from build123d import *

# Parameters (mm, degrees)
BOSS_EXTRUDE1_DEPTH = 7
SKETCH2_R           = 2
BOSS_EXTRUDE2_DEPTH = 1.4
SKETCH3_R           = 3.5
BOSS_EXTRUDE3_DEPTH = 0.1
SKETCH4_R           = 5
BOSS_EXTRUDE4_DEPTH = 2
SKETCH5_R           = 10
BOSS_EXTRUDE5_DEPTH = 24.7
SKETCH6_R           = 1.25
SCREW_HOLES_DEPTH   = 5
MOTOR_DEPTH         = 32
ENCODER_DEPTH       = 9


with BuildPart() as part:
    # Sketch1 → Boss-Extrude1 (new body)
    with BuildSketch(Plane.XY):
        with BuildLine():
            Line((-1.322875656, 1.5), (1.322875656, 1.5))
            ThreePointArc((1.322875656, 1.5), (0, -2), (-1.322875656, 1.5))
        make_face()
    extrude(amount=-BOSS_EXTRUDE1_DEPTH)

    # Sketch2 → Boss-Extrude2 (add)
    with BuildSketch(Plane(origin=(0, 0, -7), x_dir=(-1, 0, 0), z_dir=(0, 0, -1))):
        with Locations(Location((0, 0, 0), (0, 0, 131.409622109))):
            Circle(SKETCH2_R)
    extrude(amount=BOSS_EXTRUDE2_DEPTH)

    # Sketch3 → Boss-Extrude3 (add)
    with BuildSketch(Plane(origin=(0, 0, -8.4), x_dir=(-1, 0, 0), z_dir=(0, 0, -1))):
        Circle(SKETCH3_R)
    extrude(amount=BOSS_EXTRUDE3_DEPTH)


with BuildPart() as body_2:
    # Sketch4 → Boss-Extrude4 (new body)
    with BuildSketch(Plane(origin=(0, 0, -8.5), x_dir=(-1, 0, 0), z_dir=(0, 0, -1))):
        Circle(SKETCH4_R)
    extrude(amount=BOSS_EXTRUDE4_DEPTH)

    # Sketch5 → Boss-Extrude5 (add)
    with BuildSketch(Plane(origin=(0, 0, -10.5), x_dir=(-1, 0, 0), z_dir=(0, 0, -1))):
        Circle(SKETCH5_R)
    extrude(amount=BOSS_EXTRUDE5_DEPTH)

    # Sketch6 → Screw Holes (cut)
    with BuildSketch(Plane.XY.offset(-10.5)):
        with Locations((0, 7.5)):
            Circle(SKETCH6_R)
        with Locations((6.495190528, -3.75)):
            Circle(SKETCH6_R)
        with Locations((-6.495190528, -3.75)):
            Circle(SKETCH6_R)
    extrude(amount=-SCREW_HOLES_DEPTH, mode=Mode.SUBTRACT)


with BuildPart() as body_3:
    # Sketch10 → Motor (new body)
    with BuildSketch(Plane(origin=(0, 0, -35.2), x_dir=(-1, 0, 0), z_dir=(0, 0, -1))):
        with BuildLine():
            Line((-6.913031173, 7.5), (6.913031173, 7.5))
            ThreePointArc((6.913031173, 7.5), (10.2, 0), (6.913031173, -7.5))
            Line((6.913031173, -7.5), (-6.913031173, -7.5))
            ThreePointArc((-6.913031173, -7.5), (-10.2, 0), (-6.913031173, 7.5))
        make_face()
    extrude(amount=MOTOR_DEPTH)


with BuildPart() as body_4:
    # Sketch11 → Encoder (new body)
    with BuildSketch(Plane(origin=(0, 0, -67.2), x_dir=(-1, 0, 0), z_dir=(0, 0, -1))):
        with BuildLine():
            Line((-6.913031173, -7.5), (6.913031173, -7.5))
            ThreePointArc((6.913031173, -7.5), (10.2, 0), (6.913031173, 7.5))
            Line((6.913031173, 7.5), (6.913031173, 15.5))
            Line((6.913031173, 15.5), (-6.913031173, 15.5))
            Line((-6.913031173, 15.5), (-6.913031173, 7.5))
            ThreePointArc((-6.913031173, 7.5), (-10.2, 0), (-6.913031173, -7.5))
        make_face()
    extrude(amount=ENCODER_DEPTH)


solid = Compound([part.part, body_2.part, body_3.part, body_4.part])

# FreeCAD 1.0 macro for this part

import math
import FreeCAD as App
import Part
import Sketcher
from FreeCAD import Vector
Q = App.Units.Quantity

doc = App.newDocument("Part")
params = doc.addObject("Spreadsheet::Sheet", "Params")
for row, (alias, value) in enumerate([
    ("sketch1_radius", "2 mm"),
    ("pad1_length", "7 mm"),
    ("sketch2_diameter", "4 mm"),
    ("pad2_length", "1.4 mm"),
    ("sketch3_diameter", "7 mm"),
    ("pad3_length", "0.1 mm"),
    ("sketch4_diameter", "10 mm"),
    ("pad4_length", "2 mm"),
    ("sketch5_diameter", "20 mm"),
    ("pad5_length", "24.7 mm"),
    ("sketch6_diameter", "2.5 mm"),
    ("pocket1_length", "5 mm"),
    ("sketch7_radius", "10.2 mm"),
    ("pad6_length", "32 mm"),
    ("sketch8_radius", "10.2 mm"),
    ("sketch8_height", "8 mm"),
    ("pad7_length", "9 mm"),
], start=1):
    params.set(f"A{row}", alias)
    params.set(f"B{row}", "=" + value)
    params.setAlias(f"B{row}", alias)

body = doc.addObject("PartDesign::Body", "Body")

# Sketch on XY plane
sketch1 = body.newObject("Sketcher::SketchObject", "Sketch")
sketch1.AttachmentSupport = (doc.getObject("XY_Plane"), [""])
sketch1.MapMode = "FlatFace"
sketch1.addGeometry([
    Part.LineSegment(Vector(1.322876, 1.5, 0), Vector(-1.322876, 1.5, 0)),
    Part.ArcOfCircle(Part.Circle(Vector(0, 0, 0), Vector(0, 0, 1), 2), math.radians(131.409622), math.radians(408.590378)),
], False)
sketch1.addConstraint([
    Sketcher.Constraint("Coincident", 0, 1, 1, 2),
    Sketcher.Constraint("Coincident", 1, 1, 0, 2),
    Sketcher.Constraint("Horizontal", 0),
    Sketcher.Constraint("Coincident", 1, 3, -1, 1),
    Sketcher.Constraint("Radius", 1, Q("2 mm")),
    Sketcher.Constraint("DistanceY", -1, 1, 0, 1, Q("1.5 mm")),
])
sketch1.setExpression("Constraints[4]", "Params.sketch1_radius")
pad1 = body.newObject("PartDesign::Pad", "Pad")
pad1.Profile = sketch1
pad1.setExpression("Length", "Params.pad1_length")
pad1.Reversed = True

# Sketch on XY plane
sketch2 = body.newObject("Sketcher::SketchObject", "Sketch001")
sketch2.AttachmentSupport = (doc.getObject("XY_Plane"), [""])
sketch2.MapMode = "FlatFace"
sketch2.AttachmentOffset = App.Placement(Vector(0, 0, -7), App.Rotation())
sketch2.addGeometry(Part.Circle(Vector(0, 0, 0), Vector(0, 0, 1), 2), False)
sketch2.addConstraint([
    Sketcher.Constraint("Coincident", 0, 3, -1, 1),
    Sketcher.Constraint("Diameter", 0, Q("4 mm")),
])
sketch2.setExpression("Constraints[1]", "Params.sketch2_diameter")
pad2 = body.newObject("PartDesign::Pad", "Pad001")
pad2.Profile = sketch2
pad2.setExpression("Length", "Params.pad2_length")
pad2.Reversed = True

# Sketch on XY plane
sketch3 = body.newObject("Sketcher::SketchObject", "Sketch002")
sketch3.AttachmentSupport = (doc.getObject("XY_Plane"), [""])
sketch3.MapMode = "FlatFace"
sketch3.AttachmentOffset = App.Placement(Vector(0, 0, -8.4), App.Rotation())
sketch3.addGeometry(Part.Circle(Vector(0, 0, 0), Vector(0, 0, 1), 3.5), False)
sketch3.addConstraint([
    Sketcher.Constraint("Coincident", 0, 3, -1, 1),
    Sketcher.Constraint("Diameter", 0, Q("7 mm")),
])
sketch3.setExpression("Constraints[1]", "Params.sketch3_diameter")
pad3 = body.newObject("PartDesign::Pad", "Pad002")
pad3.Profile = sketch3
pad3.setExpression("Length", "Params.pad3_length")
pad3.Reversed = True
body2 = doc.addObject("PartDesign::Body", "Body001")

# Sketch on XY plane
sketch4 = body2.newObject("Sketcher::SketchObject", "Sketch003")
sketch4.AttachmentSupport = (doc.getObject("XY_Plane001"), [""])
sketch4.MapMode = "FlatFace"
sketch4.AttachmentOffset = App.Placement(Vector(0, 0, -8.5), App.Rotation())
sketch4.addGeometry(Part.Circle(Vector(0, 0, 0), Vector(0, 0, 1), 5), False)
sketch4.addConstraint([
    Sketcher.Constraint("Coincident", 0, 3, -1, 1),
    Sketcher.Constraint("Diameter", 0, Q("10 mm")),
])
sketch4.setExpression("Constraints[1]", "Params.sketch4_diameter")
pad4 = body2.newObject("PartDesign::Pad", "Pad003")
pad4.Profile = sketch4
pad4.setExpression("Length", "Params.pad4_length")
pad4.Reversed = True

# Sketch on XY plane
sketch5 = body2.newObject("Sketcher::SketchObject", "Sketch004")
sketch5.AttachmentSupport = (doc.getObject("XY_Plane001"), [""])
sketch5.MapMode = "FlatFace"
sketch5.AttachmentOffset = App.Placement(Vector(0, 0, -10.5), App.Rotation())
sketch5.addGeometry(Part.Circle(Vector(0, 0, 0), Vector(0, 0, 1), 10), False)
sketch5.addConstraint([
    Sketcher.Constraint("Coincident", 0, 3, -1, 1),
    Sketcher.Constraint("Diameter", 0, Q("20 mm")),
])
sketch5.setExpression("Constraints[1]", "Params.sketch5_diameter")
pad5 = body2.newObject("PartDesign::Pad", "Pad004")
pad5.Profile = sketch5
pad5.setExpression("Length", "Params.pad5_length")
pad5.Reversed = True

# Sketch on XY plane
sketch6 = body2.newObject("Sketcher::SketchObject", "Sketch005")
sketch6.AttachmentSupport = (doc.getObject("XY_Plane001"), [""])
sketch6.MapMode = "FlatFace"
sketch6.AttachmentOffset = App.Placement(Vector(0, 0, -10.5), App.Rotation())
sketch6.addGeometry([
    Part.Circle(Vector(0, 7.5, 0), Vector(0, 0, 1), 1.25),
    Part.Circle(Vector(6.495191, -3.75, 0), Vector(0, 0, 1), 1.25),
    Part.Circle(Vector(-6.495191, -3.75, 0), Vector(0, 0, 1), 1.25),
], False)
sketch6.addConstraint([
    Sketcher.Constraint("Equal", 0, 1),
    Sketcher.Constraint("Equal", 1, 2),
    Sketcher.Constraint("Symmetric", 1, 3, 2, 3, -2),
    Sketcher.Constraint("PointOnObject", 0, 3, -2),
    Sketcher.Constraint("Diameter", 0, Q("2.5 mm")),
    Sketcher.Constraint("DistanceY", -1, 1, 0, 3, Q("7.5 mm")),
    Sketcher.Constraint("DistanceY", 1, 3, -1, 1, Q("3.75 mm")),
    Sketcher.Constraint("DistanceX", -1, 1, 1, 3, Q("6.495191 mm")),
])
sketch6.setExpression("Constraints[4]", "Params.sketch6_diameter")
pocket1 = body2.newObject("PartDesign::Pocket", "Pocket")
pocket1.Profile = sketch6
pocket1.setExpression("Length", "Params.pocket1_length")
body3 = doc.addObject("PartDesign::Body", "Body002")

# Sketch on XY plane
sketch7 = body3.newObject("Sketcher::SketchObject", "Sketch006")
sketch7.AttachmentSupport = (doc.getObject("XY_Plane002"), [""])
sketch7.MapMode = "FlatFace"
sketch7.AttachmentOffset = App.Placement(Vector(0, 0, -35.2), App.Rotation())
sketch7.addGeometry([
    Part.LineSegment(Vector(-6.913031, 7.5, 0), Vector(6.913031, 7.5, 0)),
    Part.ArcOfCircle(Part.Circle(Vector(0, 0, 0), Vector(0, 0, 1), 10.2), math.radians(-47.332075), math.radians(47.332075)),
    Part.LineSegment(Vector(6.913031, -7.5, 0), Vector(-6.913031, -7.5, 0)),
    Part.ArcOfCircle(Part.Circle(Vector(0, 0, 0), Vector(0, 0, 1), 10.2), math.radians(132.667925), math.radians(227.332075)),
], False)
sketch7.addConstraint([
    Sketcher.Constraint("Coincident", 0, 2, 1, 2),
    Sketcher.Constraint("Coincident", 1, 1, 2, 1),
    Sketcher.Constraint("Coincident", 2, 2, 3, 2),
    Sketcher.Constraint("Coincident", 3, 1, 0, 1),
    Sketcher.Constraint("Horizontal", 0),
    Sketcher.Constraint("Horizontal", 2),
    Sketcher.Constraint("Coincident", 1, 3, -1, 1),
    Sketcher.Constraint("Coincident", 3, 3, -1, 1),
    Sketcher.Constraint("Equal", 1, 3),
    Sketcher.Constraint("Vertical", 0, 2, 1, 1),
    Sketcher.Constraint("Radius", 1, Q("10.2 mm")),
    Sketcher.Constraint("DistanceY", 1, 1, 0, 2, Q("15 mm")),
])
sketch7.setExpression("Constraints[10]", "Params.sketch7_radius")
pad6 = body3.newObject("PartDesign::Pad", "Pad005")
pad6.Profile = sketch7
pad6.setExpression("Length", "Params.pad6_length")
pad6.Reversed = True
body4 = doc.addObject("PartDesign::Body", "Body003")

# Sketch on XY plane
sketch8 = body4.newObject("Sketcher::SketchObject", "Sketch007")
sketch8.AttachmentSupport = (doc.getObject("XY_Plane003"), [""])
sketch8.MapMode = "FlatFace"
sketch8.AttachmentOffset = App.Placement(Vector(0, 0, -67.2), App.Rotation())
sketch8.addGeometry([
    Part.LineSegment(Vector(6.913031, -7.5, 0), Vector(-6.913031, -7.5, 0)),  # 0
    Part.ArcOfCircle(Part.Circle(Vector(0, 0, 0), Vector(0, 0, 1), 10.2), math.radians(132.667925), math.radians(227.332075)),  # 1
    Part.LineSegment(Vector(-6.913031, 7.5, 0), Vector(-6.913031, 15.5, 0)),  # 2
    Part.LineSegment(Vector(-6.913031, 15.5, 0), Vector(6.913031, 15.5, 0)),  # 3
    Part.LineSegment(Vector(6.913031, 15.5, 0), Vector(6.913031, 7.5, 0)),  # 4
    Part.ArcOfCircle(Part.Circle(Vector(0, 0, 0), Vector(0, 0, 1), 10.2), math.radians(-47.332075), math.radians(47.332075)),  # 5
], False)
sketch8.addConstraint([
    Sketcher.Constraint("Coincident", 0, 2, 1, 2),
    Sketcher.Constraint("Coincident", 1, 1, 2, 1),
    Sketcher.Constraint("Coincident", 2, 2, 3, 1),
    Sketcher.Constraint("Coincident", 3, 2, 4, 1),
    Sketcher.Constraint("Coincident", 4, 2, 5, 2),
    Sketcher.Constraint("Coincident", 5, 1, 0, 1),
    Sketcher.Constraint("Horizontal", 0),
    Sketcher.Constraint("Vertical", 2),
    Sketcher.Constraint("Horizontal", 3),
    Sketcher.Constraint("Vertical", 4),
    Sketcher.Constraint("Coincident", 1, 3, -1, 1),
    Sketcher.Constraint("Coincident", 5, 3, -1, 1),
    Sketcher.Constraint("Equal", 1, 5),
    Sketcher.Constraint("Horizontal", 1, 1, 4, 2),
    Sketcher.Constraint("Vertical", 0, 2, 1, 1),
    Sketcher.Constraint("Radius", 1, Q("10.2 mm")),
    Sketcher.Constraint("DistanceY", 2, 1, 2, 2, Q("8 mm")),
    Sketcher.Constraint("DistanceY", 0, 2, 1, 1, Q("15 mm")),
])
sketch8.setExpression("Constraints[15]", "Params.sketch8_radius")
sketch8.setExpression("Constraints[16]", "Params.sketch8_height")
pad7 = body4.newObject("PartDesign::Pad", "Pad006")
pad7.Profile = sketch8
pad7.setExpression("Length", "Params.pad7_length")
pad7.Reversed = True

doc.recompute()
